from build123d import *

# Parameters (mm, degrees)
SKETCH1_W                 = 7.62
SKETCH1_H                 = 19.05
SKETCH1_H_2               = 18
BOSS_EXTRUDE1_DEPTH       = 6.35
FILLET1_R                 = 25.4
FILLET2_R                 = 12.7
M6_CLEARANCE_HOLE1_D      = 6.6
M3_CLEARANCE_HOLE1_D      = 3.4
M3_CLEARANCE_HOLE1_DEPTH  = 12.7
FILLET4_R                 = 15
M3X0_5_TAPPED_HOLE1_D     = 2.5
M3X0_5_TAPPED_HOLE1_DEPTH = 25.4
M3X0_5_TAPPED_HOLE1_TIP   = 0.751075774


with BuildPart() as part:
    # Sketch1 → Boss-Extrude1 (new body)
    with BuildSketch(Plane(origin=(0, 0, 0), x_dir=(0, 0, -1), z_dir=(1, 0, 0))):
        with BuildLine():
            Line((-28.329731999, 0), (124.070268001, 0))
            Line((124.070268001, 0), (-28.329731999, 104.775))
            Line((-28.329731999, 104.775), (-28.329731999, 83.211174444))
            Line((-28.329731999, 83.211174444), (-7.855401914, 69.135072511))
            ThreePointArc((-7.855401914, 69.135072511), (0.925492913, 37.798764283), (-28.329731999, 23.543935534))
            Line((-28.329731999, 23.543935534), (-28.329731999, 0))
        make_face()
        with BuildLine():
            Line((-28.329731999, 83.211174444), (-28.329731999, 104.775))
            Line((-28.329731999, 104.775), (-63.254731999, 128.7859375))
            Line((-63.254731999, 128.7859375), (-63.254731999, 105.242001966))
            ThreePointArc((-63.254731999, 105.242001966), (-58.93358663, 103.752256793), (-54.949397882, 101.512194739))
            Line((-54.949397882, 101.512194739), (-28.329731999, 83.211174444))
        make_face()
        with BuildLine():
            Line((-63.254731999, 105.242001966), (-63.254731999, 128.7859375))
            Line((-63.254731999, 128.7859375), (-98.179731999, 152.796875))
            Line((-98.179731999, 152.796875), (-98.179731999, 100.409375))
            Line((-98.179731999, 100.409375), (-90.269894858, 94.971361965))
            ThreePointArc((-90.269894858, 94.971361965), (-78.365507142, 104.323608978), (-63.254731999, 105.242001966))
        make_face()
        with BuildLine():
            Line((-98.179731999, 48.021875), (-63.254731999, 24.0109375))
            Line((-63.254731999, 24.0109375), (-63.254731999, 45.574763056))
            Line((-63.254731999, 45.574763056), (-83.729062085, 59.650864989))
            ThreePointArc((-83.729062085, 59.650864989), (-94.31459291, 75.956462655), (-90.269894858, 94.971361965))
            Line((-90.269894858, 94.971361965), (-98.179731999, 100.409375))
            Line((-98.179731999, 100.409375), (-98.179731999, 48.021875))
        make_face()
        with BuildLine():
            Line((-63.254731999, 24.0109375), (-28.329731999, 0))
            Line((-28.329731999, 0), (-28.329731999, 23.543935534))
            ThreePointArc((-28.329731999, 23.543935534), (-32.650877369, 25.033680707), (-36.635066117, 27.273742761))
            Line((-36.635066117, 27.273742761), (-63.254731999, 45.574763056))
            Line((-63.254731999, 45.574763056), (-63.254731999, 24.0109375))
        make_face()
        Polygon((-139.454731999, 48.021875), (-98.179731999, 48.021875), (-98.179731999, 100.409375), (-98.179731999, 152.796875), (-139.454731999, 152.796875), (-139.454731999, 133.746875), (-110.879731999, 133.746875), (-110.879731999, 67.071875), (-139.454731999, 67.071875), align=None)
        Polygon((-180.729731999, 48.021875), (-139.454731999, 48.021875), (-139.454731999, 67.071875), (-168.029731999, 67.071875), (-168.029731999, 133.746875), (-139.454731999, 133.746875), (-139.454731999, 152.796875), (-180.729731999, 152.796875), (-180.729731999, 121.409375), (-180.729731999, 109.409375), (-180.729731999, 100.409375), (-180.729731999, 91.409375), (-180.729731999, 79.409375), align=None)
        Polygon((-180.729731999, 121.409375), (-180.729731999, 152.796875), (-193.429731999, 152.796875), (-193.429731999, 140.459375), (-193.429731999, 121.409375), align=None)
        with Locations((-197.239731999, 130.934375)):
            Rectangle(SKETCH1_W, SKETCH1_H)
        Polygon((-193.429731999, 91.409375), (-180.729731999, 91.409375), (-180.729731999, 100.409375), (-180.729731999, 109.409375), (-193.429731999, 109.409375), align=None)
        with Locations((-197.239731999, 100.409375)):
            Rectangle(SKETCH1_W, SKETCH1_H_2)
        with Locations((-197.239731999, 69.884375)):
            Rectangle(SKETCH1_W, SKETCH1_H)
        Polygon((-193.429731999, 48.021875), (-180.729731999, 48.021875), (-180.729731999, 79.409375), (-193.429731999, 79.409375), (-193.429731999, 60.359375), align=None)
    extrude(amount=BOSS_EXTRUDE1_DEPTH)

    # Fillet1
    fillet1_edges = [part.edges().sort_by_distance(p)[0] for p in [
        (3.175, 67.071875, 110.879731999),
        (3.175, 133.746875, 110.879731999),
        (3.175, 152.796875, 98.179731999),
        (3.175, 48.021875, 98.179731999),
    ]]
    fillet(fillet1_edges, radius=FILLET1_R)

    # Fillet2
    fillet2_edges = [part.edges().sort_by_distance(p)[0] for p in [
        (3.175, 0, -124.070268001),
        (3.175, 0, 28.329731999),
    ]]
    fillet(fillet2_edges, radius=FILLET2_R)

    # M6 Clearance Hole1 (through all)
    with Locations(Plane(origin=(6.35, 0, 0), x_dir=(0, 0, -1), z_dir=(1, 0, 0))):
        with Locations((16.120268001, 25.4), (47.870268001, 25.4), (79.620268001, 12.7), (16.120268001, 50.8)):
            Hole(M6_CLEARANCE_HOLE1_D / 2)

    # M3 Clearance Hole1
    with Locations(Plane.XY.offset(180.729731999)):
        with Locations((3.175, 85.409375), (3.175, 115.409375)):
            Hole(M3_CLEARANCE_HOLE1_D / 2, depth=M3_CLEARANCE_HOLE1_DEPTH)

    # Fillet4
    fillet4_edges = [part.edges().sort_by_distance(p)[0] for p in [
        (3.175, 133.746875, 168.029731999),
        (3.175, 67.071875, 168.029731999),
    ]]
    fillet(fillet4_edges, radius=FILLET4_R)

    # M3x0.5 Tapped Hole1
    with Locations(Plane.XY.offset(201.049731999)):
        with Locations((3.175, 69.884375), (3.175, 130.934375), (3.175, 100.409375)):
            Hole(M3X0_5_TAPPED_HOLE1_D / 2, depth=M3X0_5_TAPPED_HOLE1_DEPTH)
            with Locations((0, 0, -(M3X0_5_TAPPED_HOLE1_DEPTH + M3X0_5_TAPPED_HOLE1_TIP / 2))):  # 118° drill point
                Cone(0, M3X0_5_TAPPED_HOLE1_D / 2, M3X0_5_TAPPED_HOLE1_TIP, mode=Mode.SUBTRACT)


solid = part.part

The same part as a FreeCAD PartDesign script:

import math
import FreeCAD as App
import Part
import Sketcher

V = App.Vector
Q = App.Units.Quantity


def edges_at(feature, points):
    """Names of the edges that pass closest to the given points."""
    edges = feature.Shape.Edges
    near = lambda p: min(range(len(edges)), key=lambda i: edges[i].distToShape(Part.Vertex(*p))[0])
    return sorted({f"Edge{near(p) + 1}" for p in points})

doc = App.newDocument("Part")
body = doc.addObject("PartDesign::Body", "Body")

sketch1 = body.newObject("Sketcher::SketchObject", "Sketch")
sketch1.AttachmentSupport = (doc.getObject("YZ_Plane"), [""])
sketch1.MapMode = "FlatFace"
sketch1.addGeometry([
    Part.LineSegment(V(0, 28, 0), V(0, -124, 0)),
    Part.LineSegment(V(0, -124, 0), V(153, 98, 0)),
    Part.LineSegment(V(153, 98, 0), V(153, 193, 0)),
    Part.LineSegment(V(153, 193, 0), V(140, 193, 0)),
    Part.LineSegment(V(140, 193, 0), V(140, 201, 0)),
    Part.LineSegment(V(140, 201, 0), V(121, 201, 0)),
    Part.LineSegment(V(121, 201, 0), V(121, 181, 0)),
    Part.LineSegment(V(121, 181, 0), V(109, 181, 0)),
    Part.LineSegment(V(109, 181, 0), V(109, 201, 0)),
    Part.LineSegment(V(109, 201, 0), V(91, 201, 0)),
    Part.LineSegment(V(91, 201, 0), V(91, 181, 0)),
    Part.LineSegment(V(91, 181, 0), V(79, 181, 0)),
    Part.LineSegment(V(79, 181, 0), V(79, 201, 0)),
    Part.LineSegment(V(79, 201, 0), V(60, 201, 0)),
    Part.LineSegment(V(60, 201, 0), V(60, 193, 0)),
    Part.LineSegment(V(60, 193, 0), V(48, 193, 0)),
    Part.LineSegment(V(48, 193, 0), V(48, 98, 0)),
    Part.LineSegment(V(48, 98, 0), V(0, 28, 0)),
    Part.LineSegment(V(134, 111, 0), V(67, 111, 0)),
    Part.LineSegment(V(67, 111, 0), V(67, 168, 0)),
    Part.LineSegment(V(67, 168, 0), V(134, 168, 0)),
    Part.LineSegment(V(134, 168, 0), V(134, 111, 0)),
    Part.LineSegment(V(46, 63, 0), V(60, 84, 0)),
    Part.ArcOfCircle(Part.Circle(V(81, 69, 0), V(0, 0, 1), 25), math.radians(55), math.radians(145)),
    Part.ArcOfCircle(Part.Circle(V(81, 69, 0), V(0, 0, 1), 25), math.radians(-14), math.radians(55)),
    Part.ArcOfCircle(Part.Circle(V(81, 69, 0), V(0, 0, 1), 25), math.radians(-35), math.radians(-14)),
    Part.LineSegment(V(102, 55, 0), V(83, 28, 0)),
    Part.LineSegment(V(83, 28, 0), V(69, 8, 0)),
    Part.ArcOfCircle(Part.Circle(V(48, 22, 0), V(0, 0, 1), 25), math.radians(166), math.radians(325)),
    Part.ArcOfCircle(Part.Circle(V(48, 22, 0), V(0, 0, 1), 25), math.radians(145), math.radians(166)),
    Part.LineSegment(V(27, 37, 0), V(46, 63, 0)),
], False)
sketch1.addConstraint([
    Sketcher.Constraint("Coincident", 0, 2, 1, 1),
    Sketcher.Constraint("Coincident", 1, 2, 2, 1),
    Sketcher.Constraint("Coincident", 2, 2, 3, 1),
    Sketcher.Constraint("Coincident", 3, 2, 4, 1),
    Sketcher.Constraint("Coincident", 4, 2, 5, 1),
    Sketcher.Constraint("Coincident", 5, 2, 6, 1),
    Sketcher.Constraint("Coincident", 6, 2, 7, 1),
    Sketcher.Constraint("Coincident", 7, 2, 8, 1),
    Sketcher.Constraint("Coincident", 8, 2, 9, 1),
    Sketcher.Constraint("Coincident", 9, 2, 10, 1),
    Sketcher.Constraint("Coincident", 10, 2, 11, 1),
    Sketcher.Constraint("Coincident", 11, 2, 12, 1),
    Sketcher.Constraint("Coincident", 12, 2, 13, 1),
    Sketcher.Constraint("Coincident", 13, 2, 14, 1),
    Sketcher.Constraint("Coincident", 14, 2, 15, 1),
    Sketcher.Constraint("Coincident", 15, 2, 16, 1),
    Sketcher.Constraint("Coincident", 16, 2, 17, 1),
    Sketcher.Constraint("Coincident", 17, 2, 0, 1),
    Sketcher.Constraint("Coincident", 18, 2, 19, 1),
    Sketcher.Constraint("Coincident", 19, 2, 20, 1),
    Sketcher.Constraint("Coincident", 20, 2, 21, 1),
    Sketcher.Constraint("Coincident", 21, 2, 18, 1),
    Sketcher.Constraint("Tangent", 22, 2, 23, 2),
    Sketcher.Constraint("Tangent", 23, 1, 24, 2),
    Sketcher.Constraint("Tangent", 24, 1, 25, 2),
    Sketcher.Constraint("Tangent", 25, 1, 26, 1),
    Sketcher.Constraint("Coincident", 26, 2, 27, 1),
    Sketcher.Constraint("Tangent", 27, 2, 28, 2),
    Sketcher.Constraint("Tangent", 28, 1, 29, 2),
    Sketcher.Constraint("Tangent", 29, 1, 30, 1),
    Sketcher.Constraint("Coincident", 30, 2, 22, 1),
    Sketcher.Constraint("Vertical", 0),
    Sketcher.Constraint("Vertical", 2),
    Sketcher.Constraint("Horizontal", 3),
    Sketcher.Constraint("Vertical", 4),
    Sketcher.Constraint("Horizontal", 5),
    Sketcher.Constraint("Vertical", 6),
    Sketcher.Constraint("Horizontal", 7),
    Sketcher.Constraint("Vertical", 8),
    Sketcher.Constraint("Horizontal", 9),
    Sketcher.Constraint("Vertical", 10),
    Sketcher.Constraint("Horizontal", 11),
    Sketcher.Constraint("Vertical", 12),
    Sketcher.Constraint("Horizontal", 13),
    Sketcher.Constraint("Vertical", 14),
    Sketcher.Constraint("Horizontal", 15),
    Sketcher.Constraint("Vertical", 16),
    Sketcher.Constraint("Horizontal", 18),
    Sketcher.Constraint("Vertical", 19),
    Sketcher.Constraint("Horizontal", 20),
    Sketcher.Constraint("Vertical", 21),
    Sketcher.Constraint("Coincident", 25, 3, 23, 3),
    Sketcher.Constraint("Equal", 25, 28),
    Sketcher.Constraint("Equal", 28, 29),
    Sketcher.Constraint("PointOnObject", 0, 2, -2),
    Sketcher.Constraint("Parallel", 1, 17),
    Sketcher.Constraint("Parallel", 17, 22),
    Sketcher.Constraint("Parallel", 22, 26),
    Sketcher.Constraint("Parallel", 26, 27),
    Sketcher.Constraint("Horizontal", 5, 2, 8, 2),
    Sketcher.Constraint("Horizontal", 7, 2, 10, 2),
    Sketcher.Constraint("Horizontal", 9, 2, 12, 2),
    Sketcher.Constraint("Horizontal", 3, 2, 14, 2),
    Sketcher.Constraint("Horizontal", 1, 2, 16, 2),
    Sketcher.Constraint("Horizontal", 17, 2, 26, 2),
    Sketcher.Constraint("Horizontal", 26, 2, 28, 1),
    Sketcher.Constraint("Horizontal", 24, 1, 30, 2),
    Sketcher.Constraint("Equal", 7, 11),
    Sketcher.Constraint("Equal", 5, 13),
    Sketcher.Constraint("Equal", 3, 15),
    Sketcher.Constraint("Equal", 22, 27),
    Sketcher.Constraint("Radius", 23, Q("1 in")),
    Sketcher.Constraint("DistanceY", 0, 2, 0, 1, Q("6 in")),
    Sketcher.Constraint("DistanceY", 4, 1, 4, 2, Q("0.3 in")),
    Sketcher.Constraint("DistanceY", 6, 2, 6, 1, Q("0.8 in")),
    Sketcher.Constraint("DistanceY", 19, 2, 14, 2, Q("1 in")),
    Sketcher.Constraint("DistanceX", 5, 2, 5, 1, Q("0.75 in")),
    Sketcher.Constraint("DistanceY", 2, 1, 2, 2, Q("3.75 in")),
    Sketcher.Constraint("DistanceY", 19, 1, 19, 2, Q("2.25 in")),
    Sketcher.Constraint("DistanceX", 18, 2, 18, 1, Q("2.625 in")),
    Sketcher.Constraint("DistanceY", 17, 2, 16, 2, Q("2.75 in")),
    Sketcher.Constraint("DistanceX", 16, 2, 18, 2, Q("0.75 in")),
    Sketcher.Constraint("DistanceX", 20, 2, 2, 2, Q("0.75 in")),
    Sketcher.Constraint("DistanceY", 30, 2, 16, 2, Q("1.375 in")),
    Sketcher.Constraint("DistanceX", 3, 2, 3, 1, Q("12.3375 mm")),
    Sketcher.Constraint("DistanceX", 7, 2, 7, 1, Q("12 mm")),
    Sketcher.Constraint("DistanceX", -1, 1, 24, 1, Q("105.242002 mm")),
    Sketcher.Constraint("DistanceY", -1, 1, 27, 2, Q("7.855402 mm")),
    Sketcher.Constraint("DistanceX", 27, 2, 26, 2, Q("14.076102 mm")),
    Sketcher.Constraint("DistanceX", -1, 1, 23, 1, Q("94.971362 mm")),
])
pad1 = body.newObject("PartDesign::Pad", "Pad")
pad1.Profile = sketch1
pad1.Length = Q("0.25 in")
doc.recompute()

fillet = body.newObject("PartDesign::Fillet", "Fillet")
fillet.Base = (pad1, edges_at(pad1, [
    (3.175, 67.072, 110.88),
    (3.175, 133.747, 110.88),
    (3.175, 152.797, 98.18),
    (3.175, 48.022, 98.18),
]))
fillet.Radius = Q("1 in")
doc.recompute()

fillet2 = body.newObject("PartDesign::Fillet", "Fillet001")
fillet2.Base = (fillet, edges_at(fillet, [(3.175, 0, -124.07), (3.175, 0, 28.33)]))
fillet2.Radius = Q("0.5 in")

sketch2 = body.newObject("Sketcher::SketchObject", "Sketch001")
sketch2.AttachmentSupport = (doc.getObject("YZ_Plane"), [""])
sketch2.MapMode = "FlatFace"
sketch2.AttachmentOffset = App.Placement(V(0, 0, 0.25 * 25.4), App.Rotation())
sketch2.addGeometry([
    Part.Circle(V(25.4, -16.1, 0), V(0, 0, 1), 3.3),
    Part.Circle(V(25.4, -47.9, 0), V(0, 0, 1), 3.3),
    Part.Circle(V(12.7, -79.6, 0), V(0, 0, 1), 3.3),
    Part.Circle(V(50.8, -16.1, 0), V(0, 0, 1), 3.3),
], False)
sketch2.addConstraint([
    Sketcher.Constraint("Equal", 0, 1),
    Sketcher.Constraint("Equal", 1, 2),
    Sketcher.Constraint("Equal", 2, 3),
    Sketcher.Constraint("Horizontal", 0, 3, 3, 3),
    Sketcher.Constraint("Vertical", 0, 3, 1, 3),
    Sketcher.Constraint("DistanceX", -1, 1, 0, 3, Q("1 in")),
    Sketcher.Constraint("DistanceX", -1, 1, 3, 3, Q("2 in")),
    Sketcher.Constraint("DistanceX", -1, 1, 2, 3, Q("0.5 in")),
    Sketcher.Constraint("DistanceY", 2, 3, 0, 3, Q("2.5 in")),
    Sketcher.Constraint("Diameter", 0, Q("6.6 mm")),
    Sketcher.Constraint("DistanceY", 1, 3, 0, 3, Q("1.25 in")),
    Sketcher.Constraint("DistanceY", 0, 3, -1, 1, Q("16.120268 mm")),
])
doc.recompute()
hole = body.newObject("PartDesign::Hole", "Hole")
hole.Profile = sketch2
hole.ThreadType = "None"
hole.Diameter = 6.6
hole.DepthType = "ThroughAll"

sketch3 = body.newObject("Sketcher::SketchObject", "Sketch002")
sketch3.AttachmentSupport = (doc.getObject("XY_Plane"), [""])
sketch3.MapMode = "FlatFace"
sketch3.AttachmentOffset = App.Placement(V(0, 0, 180.729732), App.Rotation())
sketch3.addGeometry([
    Part.Circle(V(3.2, 85.4, 0), V(0, 0, 1), 1.7),
    Part.Circle(V(3.2, 115.4, 0), V(0, 0, 1), 1.7),
], False)
sketch3.addConstraint([
    Sketcher.Constraint("Equal", 0, 1),
    Sketcher.Constraint("Vertical", 0, 3, 1, 3),
    Sketcher.Constraint("Diameter", 0, Q("3.4 mm")),
    Sketcher.Constraint("DistanceX", -1, 1, 0, 3, Q("0.125 in")),
    Sketcher.Constraint("DistanceY", 0, 3, 1, 3, Q("30 mm")),
    Sketcher.Constraint("DistanceY", -1, 1, 0, 3, Q("85.409375 mm")),
])
doc.recompute()
hole2 = body.newObject("PartDesign::Hole", "Hole001")
hole2.Profile = sketch3
hole2.ThreadType = "None"
hole2.Diameter = 3.4
hole2.DepthType = "Dimension"
hole2.Depth = Q("0.5 in")
hole2.DrillPoint = "Flat"
doc.recompute()

fillet3 = body.newObject("PartDesign::Fillet", "Fillet002")
fillet3.Base = (hole2, edges_at(hole2, [(3.175, 133.747, 168.03), (3.175, 67.072, 168.03)]))
fillet3.Radius = 15

sketch4 = body.newObject("Sketcher::SketchObject", "Sketch003")
sketch4.AttachmentSupport = (doc.getObject("XY_Plane"), [""])
sketch4.MapMode = "FlatFace"
sketch4.AttachmentOffset = App.Placement(V(0, 0, 201.049732), App.Rotation())
sketch4.addGeometry([
    Part.Circle(V(3.2, 69.9, 0), V(0, 0, 1), 1.2),
    Part.Circle(V(3.2, 130.9, 0), V(0, 0, 1), 1.2),
    Part.Circle(V(3.2, 100.4, 0), V(0, 0, 1), 1.2),
], False)
sketch4.addConstraint([
    Sketcher.Constraint("Equal", 0, 1),
    Sketcher.Constraint("Equal", 1, 2),
    Sketcher.Constraint("Vertical", 0, 3, 1, 3),
    Sketcher.Constraint("Vertical", 1, 3, 2, 3),
    Sketcher.Constraint("Diameter", 0, Q("2.5 mm")),
    Sketcher.Constraint("DistanceX", -1, 1, 0, 3, Q("0.125 in")),
    Sketcher.Constraint("DistanceY", -1, 1, 2, 3, Q("3.953125 in")),
    Sketcher.Constraint("DistanceY", 0, 3, 1, 3, Q("61.05 mm")),
    Sketcher.Constraint("DistanceY", 0, 3, 2, 3, Q("30.525 mm")),
])
doc.recompute()
hole3 = body.newObject("PartDesign::Hole", "Hole002")
hole3.Profile = sketch4
hole3.ThreadType = "None"
hole3.Diameter = 2.5
hole3.DepthType = "Dimension"
hole3.Depth = Q("1 in")
hole3.DrillPoint = "Angled"
hole3.DrillPointAngle = 118

doc.recompute()
